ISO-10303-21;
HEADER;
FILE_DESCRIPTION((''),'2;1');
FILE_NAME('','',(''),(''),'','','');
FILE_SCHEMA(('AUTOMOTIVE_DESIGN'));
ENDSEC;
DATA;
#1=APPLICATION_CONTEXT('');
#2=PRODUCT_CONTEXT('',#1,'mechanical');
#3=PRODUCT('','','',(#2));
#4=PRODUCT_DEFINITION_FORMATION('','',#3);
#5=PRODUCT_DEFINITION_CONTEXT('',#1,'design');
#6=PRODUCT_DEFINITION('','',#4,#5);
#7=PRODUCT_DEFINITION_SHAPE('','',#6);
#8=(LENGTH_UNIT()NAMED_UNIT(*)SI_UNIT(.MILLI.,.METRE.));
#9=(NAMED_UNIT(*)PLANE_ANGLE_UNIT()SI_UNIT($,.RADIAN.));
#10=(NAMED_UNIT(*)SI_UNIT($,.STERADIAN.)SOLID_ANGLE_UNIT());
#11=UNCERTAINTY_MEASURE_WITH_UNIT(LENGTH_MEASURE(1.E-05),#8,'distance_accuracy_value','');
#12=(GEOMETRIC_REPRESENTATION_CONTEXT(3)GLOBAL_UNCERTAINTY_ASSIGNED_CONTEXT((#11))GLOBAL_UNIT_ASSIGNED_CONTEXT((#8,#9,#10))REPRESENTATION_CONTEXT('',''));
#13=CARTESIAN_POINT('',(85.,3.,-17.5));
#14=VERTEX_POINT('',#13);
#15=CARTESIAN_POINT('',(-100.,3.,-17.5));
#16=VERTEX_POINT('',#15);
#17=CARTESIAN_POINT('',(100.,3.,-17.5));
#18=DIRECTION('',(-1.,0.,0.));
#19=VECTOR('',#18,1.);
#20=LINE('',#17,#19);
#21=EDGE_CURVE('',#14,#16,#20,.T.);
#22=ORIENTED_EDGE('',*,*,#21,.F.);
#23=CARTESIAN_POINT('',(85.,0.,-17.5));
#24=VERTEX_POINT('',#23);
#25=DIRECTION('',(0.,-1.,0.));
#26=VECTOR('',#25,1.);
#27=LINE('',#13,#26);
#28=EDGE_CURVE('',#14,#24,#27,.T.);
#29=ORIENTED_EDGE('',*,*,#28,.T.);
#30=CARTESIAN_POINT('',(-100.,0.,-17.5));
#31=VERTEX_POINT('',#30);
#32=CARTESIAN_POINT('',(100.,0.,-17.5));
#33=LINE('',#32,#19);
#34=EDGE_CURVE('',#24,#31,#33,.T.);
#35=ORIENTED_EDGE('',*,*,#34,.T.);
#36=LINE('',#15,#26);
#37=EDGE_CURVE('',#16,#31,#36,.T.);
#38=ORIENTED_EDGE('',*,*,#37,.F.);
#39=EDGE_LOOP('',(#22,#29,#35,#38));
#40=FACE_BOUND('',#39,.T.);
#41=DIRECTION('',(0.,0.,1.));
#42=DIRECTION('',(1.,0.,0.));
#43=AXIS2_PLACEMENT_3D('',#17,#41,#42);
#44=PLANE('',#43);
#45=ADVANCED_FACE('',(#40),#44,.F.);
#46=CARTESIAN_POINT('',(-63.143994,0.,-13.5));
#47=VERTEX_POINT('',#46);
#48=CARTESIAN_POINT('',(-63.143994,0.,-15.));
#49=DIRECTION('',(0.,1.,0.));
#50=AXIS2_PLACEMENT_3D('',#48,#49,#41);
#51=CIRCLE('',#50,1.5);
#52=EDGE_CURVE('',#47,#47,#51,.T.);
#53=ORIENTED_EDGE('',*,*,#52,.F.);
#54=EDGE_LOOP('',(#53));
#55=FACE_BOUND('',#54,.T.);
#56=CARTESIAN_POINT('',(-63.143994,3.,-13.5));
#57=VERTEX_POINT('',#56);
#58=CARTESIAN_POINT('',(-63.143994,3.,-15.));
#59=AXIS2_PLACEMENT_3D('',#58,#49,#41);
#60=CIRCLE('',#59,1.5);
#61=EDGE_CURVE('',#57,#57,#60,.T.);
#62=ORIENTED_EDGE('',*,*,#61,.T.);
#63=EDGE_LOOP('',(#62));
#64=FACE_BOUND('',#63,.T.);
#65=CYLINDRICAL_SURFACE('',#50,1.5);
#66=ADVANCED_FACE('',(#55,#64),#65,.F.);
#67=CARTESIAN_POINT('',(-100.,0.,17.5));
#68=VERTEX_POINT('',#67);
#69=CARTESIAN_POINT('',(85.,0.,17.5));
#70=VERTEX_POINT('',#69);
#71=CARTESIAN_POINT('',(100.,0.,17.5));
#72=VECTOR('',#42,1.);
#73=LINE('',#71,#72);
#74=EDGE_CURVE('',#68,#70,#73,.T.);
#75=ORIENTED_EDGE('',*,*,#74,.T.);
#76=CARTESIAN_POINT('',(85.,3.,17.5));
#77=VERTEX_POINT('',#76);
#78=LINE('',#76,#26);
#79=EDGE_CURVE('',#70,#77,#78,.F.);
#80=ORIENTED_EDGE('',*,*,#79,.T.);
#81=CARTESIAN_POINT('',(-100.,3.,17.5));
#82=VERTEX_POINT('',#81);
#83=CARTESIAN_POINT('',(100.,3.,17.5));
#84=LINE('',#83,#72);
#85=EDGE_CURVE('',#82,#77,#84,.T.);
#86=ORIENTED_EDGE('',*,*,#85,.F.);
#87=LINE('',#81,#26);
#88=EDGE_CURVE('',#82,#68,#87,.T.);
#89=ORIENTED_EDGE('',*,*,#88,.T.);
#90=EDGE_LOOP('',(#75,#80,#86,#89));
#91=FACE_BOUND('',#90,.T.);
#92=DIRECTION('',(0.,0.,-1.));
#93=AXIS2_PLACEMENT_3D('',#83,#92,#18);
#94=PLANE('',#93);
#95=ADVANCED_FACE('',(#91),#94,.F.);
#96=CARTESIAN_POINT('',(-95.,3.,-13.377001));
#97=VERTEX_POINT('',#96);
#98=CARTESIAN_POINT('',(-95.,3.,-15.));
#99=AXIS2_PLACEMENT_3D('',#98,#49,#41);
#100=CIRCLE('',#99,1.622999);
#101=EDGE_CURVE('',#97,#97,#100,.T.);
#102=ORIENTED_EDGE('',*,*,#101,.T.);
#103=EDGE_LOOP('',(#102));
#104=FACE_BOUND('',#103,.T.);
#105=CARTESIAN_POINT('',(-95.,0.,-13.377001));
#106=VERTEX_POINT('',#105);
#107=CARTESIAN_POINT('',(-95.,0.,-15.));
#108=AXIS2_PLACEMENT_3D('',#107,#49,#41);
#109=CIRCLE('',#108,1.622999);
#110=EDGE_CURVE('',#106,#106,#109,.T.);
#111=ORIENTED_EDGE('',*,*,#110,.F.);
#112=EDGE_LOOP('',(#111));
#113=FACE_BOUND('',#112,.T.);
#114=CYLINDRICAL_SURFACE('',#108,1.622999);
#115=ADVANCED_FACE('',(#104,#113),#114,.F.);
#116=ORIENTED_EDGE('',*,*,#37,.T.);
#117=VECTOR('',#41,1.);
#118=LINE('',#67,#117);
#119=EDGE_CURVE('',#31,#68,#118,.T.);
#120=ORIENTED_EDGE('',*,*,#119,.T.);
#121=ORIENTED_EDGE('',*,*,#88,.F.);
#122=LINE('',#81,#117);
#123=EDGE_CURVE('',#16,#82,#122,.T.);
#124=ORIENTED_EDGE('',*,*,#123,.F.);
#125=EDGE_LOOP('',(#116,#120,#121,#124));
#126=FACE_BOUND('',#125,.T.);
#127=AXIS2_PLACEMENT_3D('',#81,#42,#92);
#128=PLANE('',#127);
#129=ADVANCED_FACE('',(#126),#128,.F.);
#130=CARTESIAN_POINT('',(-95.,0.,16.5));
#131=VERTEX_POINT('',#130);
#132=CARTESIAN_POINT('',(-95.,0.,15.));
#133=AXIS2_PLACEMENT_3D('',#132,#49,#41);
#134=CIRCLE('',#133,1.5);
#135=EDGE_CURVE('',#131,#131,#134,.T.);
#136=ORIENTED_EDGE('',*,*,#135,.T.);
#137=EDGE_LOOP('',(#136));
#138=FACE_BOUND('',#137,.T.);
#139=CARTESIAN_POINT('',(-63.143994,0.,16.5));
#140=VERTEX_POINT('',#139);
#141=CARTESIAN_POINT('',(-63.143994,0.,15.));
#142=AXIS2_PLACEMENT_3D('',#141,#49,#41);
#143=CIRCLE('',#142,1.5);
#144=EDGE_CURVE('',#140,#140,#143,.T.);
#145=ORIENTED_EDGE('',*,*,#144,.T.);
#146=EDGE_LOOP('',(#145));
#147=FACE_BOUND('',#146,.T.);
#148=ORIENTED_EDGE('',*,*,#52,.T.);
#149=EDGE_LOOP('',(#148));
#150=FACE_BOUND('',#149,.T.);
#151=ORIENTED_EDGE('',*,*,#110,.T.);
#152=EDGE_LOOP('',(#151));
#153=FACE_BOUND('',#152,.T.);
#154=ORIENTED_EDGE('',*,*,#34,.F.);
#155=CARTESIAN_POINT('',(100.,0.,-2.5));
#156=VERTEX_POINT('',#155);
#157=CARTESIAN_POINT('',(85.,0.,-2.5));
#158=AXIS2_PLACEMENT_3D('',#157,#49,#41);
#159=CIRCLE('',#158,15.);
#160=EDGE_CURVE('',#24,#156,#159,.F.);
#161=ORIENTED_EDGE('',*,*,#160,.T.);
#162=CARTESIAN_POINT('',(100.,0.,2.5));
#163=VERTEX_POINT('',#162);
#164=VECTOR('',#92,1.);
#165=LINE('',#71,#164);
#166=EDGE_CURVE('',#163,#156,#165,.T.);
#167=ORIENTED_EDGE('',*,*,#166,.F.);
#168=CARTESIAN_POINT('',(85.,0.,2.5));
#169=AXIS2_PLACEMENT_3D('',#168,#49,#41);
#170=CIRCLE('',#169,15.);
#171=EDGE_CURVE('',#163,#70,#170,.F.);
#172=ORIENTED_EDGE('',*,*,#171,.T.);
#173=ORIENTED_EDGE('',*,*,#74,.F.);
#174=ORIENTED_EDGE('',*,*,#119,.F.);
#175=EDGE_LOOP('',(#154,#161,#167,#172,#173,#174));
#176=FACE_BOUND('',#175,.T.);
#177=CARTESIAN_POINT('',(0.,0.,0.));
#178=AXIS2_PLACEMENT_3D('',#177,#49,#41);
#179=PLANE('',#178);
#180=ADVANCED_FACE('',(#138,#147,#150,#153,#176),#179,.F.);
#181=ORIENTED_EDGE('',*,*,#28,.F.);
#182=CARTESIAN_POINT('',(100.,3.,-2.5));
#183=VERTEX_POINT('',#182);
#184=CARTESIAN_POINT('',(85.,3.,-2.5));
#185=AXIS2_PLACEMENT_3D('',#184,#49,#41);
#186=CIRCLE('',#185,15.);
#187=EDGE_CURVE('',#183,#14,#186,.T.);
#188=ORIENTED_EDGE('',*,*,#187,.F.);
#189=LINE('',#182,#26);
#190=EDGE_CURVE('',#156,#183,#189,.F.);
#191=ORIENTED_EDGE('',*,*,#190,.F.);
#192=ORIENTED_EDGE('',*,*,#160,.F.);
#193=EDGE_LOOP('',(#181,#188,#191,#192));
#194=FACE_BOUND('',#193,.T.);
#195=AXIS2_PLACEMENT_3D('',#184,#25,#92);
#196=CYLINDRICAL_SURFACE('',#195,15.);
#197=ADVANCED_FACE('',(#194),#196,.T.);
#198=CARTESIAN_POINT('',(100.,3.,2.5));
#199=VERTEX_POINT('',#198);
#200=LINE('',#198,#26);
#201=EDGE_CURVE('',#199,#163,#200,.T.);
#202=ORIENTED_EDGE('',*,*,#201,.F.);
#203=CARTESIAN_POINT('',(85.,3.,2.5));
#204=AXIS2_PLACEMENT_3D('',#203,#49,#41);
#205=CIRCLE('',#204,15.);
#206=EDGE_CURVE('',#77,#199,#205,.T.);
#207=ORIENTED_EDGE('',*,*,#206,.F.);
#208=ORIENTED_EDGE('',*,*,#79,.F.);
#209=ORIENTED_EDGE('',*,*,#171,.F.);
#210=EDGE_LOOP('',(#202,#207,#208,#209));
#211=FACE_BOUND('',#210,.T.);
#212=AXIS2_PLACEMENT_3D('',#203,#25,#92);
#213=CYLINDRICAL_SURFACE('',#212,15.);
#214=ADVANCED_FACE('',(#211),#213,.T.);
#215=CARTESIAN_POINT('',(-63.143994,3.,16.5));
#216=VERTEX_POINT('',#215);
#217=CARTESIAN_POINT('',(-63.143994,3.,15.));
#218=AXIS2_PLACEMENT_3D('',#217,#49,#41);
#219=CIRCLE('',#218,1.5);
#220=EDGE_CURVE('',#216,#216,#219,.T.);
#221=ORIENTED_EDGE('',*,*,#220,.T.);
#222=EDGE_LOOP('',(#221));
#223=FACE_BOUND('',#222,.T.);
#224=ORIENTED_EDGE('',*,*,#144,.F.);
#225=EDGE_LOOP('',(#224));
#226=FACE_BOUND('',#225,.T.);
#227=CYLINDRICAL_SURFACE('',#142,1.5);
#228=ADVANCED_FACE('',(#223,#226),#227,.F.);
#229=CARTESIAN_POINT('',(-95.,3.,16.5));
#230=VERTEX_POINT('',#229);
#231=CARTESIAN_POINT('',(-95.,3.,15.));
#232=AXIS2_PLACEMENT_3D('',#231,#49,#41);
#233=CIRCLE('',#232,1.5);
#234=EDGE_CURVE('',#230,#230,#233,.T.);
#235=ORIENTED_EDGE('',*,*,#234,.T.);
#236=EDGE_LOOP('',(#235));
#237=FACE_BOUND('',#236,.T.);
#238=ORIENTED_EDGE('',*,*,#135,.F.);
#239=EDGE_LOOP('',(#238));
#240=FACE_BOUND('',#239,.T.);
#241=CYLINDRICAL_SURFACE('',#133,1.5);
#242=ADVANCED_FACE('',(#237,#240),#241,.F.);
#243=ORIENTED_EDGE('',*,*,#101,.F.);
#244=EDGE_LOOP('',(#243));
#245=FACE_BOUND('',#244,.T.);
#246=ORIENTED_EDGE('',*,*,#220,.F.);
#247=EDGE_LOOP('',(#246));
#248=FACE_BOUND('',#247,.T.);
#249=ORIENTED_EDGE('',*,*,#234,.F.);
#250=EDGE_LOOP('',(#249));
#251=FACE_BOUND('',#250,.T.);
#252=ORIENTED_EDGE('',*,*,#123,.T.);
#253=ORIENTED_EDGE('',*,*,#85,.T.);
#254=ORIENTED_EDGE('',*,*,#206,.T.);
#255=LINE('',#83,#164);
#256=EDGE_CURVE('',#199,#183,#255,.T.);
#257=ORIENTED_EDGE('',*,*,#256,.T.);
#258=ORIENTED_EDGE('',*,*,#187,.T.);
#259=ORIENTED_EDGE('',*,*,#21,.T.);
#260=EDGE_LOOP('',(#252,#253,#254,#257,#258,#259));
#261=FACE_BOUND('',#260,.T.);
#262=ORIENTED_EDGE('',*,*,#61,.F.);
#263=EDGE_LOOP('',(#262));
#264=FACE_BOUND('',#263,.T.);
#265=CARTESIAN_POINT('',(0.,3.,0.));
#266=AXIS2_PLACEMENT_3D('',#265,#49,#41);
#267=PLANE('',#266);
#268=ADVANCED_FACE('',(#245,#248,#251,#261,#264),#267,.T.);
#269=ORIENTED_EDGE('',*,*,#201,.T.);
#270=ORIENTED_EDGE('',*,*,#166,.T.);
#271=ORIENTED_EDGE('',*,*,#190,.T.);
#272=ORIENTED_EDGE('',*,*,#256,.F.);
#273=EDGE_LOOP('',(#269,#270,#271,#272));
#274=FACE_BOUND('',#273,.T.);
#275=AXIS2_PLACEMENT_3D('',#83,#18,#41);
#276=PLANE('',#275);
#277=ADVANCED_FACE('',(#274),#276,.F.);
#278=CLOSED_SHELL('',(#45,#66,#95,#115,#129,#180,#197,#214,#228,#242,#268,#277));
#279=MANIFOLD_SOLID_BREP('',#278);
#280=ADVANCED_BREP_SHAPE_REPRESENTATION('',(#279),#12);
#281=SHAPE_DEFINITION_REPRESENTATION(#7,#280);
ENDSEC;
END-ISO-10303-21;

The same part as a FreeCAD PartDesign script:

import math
import FreeCAD as App
import Part
import Sketcher

V = App.Vector
Q = App.Units.Quantity


def edges_at(feature, points):
    """Names of the edges that pass closest to the given points."""
    edges = feature.Shape.Edges
    near = lambda p: min(range(len(edges)), key=lambda i: edges[i].distToShape(Part.Vertex(*p))[0])
    return sorted({f"Edge{near(p) + 1}" for p in points})

doc = App.newDocument("Part")
body = doc.addObject("PartDesign::Body", "Body")

# Sketch on XZ plane
sketch1 = body.newObject("Sketcher::SketchObject", "Sketch")
sketch1.AttachmentSupport = (doc.getObject("XZ_Plane"), [""])
sketch1.MapMode = "FlatFace"
sketch1.addGeometry(Part.LineSegment(V(-100, -18, 0), V(-100, 18, 0)), False)
sketch1.addGeometry(Part.LineSegment(V(-100, 18, 0), V(100, 18, 0)), False)
sketch1.addGeometry(Part.LineSegment(V(100, 18, 0), V(100, -18, 0)), False)
sketch1.addGeometry(Part.LineSegment(V(100, -18, 0), V(-100, -18, 0)), False)
sketch1.addConstraint(Sketcher.Constraint("Coincident", 0, 2, 1, 1))
sketch1.addConstraint(Sketcher.Constraint("Coincident", 1, 2, 2, 1))
sketch1.addConstraint(Sketcher.Constraint("Coincident", 2, 2, 3, 1))
sketch1.addConstraint(Sketcher.Constraint("Coincident", 3, 2, 0, 1))
sketch1.addConstraint(Sketcher.Constraint("Vertical", 0))
sketch1.addConstraint(Sketcher.Constraint("Horizontal", 1))
sketch1.addConstraint(Sketcher.Constraint("Vertical", 2))
sketch1.addConstraint(Sketcher.Constraint("Horizontal", 3))
sketch1.addConstraint(Sketcher.Constraint("Symmetric", 0, 2, 2, 2, -1, 1))
sketch1.addConstraint(Sketcher.Constraint("DistanceX", 1, 1, 1, 2, Q("200 mm")))
sketch1.addConstraint(Sketcher.Constraint("DistanceY", 0, 1, 0, 2, Q("35 mm")))
pad1 = body.newObject("PartDesign::Pad", "Pad")
pad1.Profile = sketch1
pad1.Length = 3
pad1.Reversed = True
doc.recompute()

fillet = body.newObject("PartDesign::Fillet", "Fillet")
fillet.Base = (pad1, edges_at(pad1, [(100, 1.5, -17.5), (100, 1.5, 17.5)]))
fillet.Radius = 15

# Sketch on XZ plane
sketch2 = body.newObject("Sketcher::SketchObject", "Sketch001")
sketch2.AttachmentSupport = (doc.getObject("XZ_Plane"), [""])
sketch2.MapMode = "FlatFace"
sketch2.AttachmentOffset = App.Placement(V(0, 0, -3), App.Rotation())
sketch2.addGeometry(Part.ArcOfCircle(Part.Circle(V(-95, -15, 0), V(0, 0, 1), 1.6), math.radians(90), math.radians(360)), False)
sketch2.addGeometry(Part.ArcOfCircle(Part.Circle(V(-95, -15, 0), V(0, 0, 1), 1.6), math.radians(0), math.radians(90)), False)
sketch2.addGeometry(Part.ArcOfCircle(Part.Circle(V(-95, 15, 0), V(0, 0, 1), 1.5), math.radians(0), math.radians(270)), False)
sketch2.addGeometry(Part.ArcOfCircle(Part.Circle(V(-95, 15, 0), V(0, 0, 1), 1.5), math.radians(-90), math.radians(0)), False)
sketch2.addGeometry(Part.ArcOfCircle(Part.Circle(V(-63.1, 15, 0), V(0, 0, 1), 1.5), math.radians(180), math.radians(270)), False)
sketch2.addGeometry(Part.ArcOfCircle(Part.Circle(V(-63.1, 15, 0), V(0, 0, 1), 1.5), math.radians(0), math.radians(180)), False)
sketch2.addGeometry(Part.ArcOfCircle(Part.Circle(V(-63.1, 15, 0), V(0, 0, 1), 1.5), math.radians(-90), math.radians(0)), False)
sketch2.addGeometry(Part.ArcOfCircle(Part.Circle(V(-63.1, -15, 0), V(0, 0, 1), 1.5), math.radians(90), math.radians(180)), False)
sketch2.addGeometry(Part.ArcOfCircle(Part.Circle(V(-63.1, -15, 0), V(0, 0, 1), 1.5), math.radians(0), math.radians(90)), False)
sketch2.addGeometry(Part.ArcOfCircle(Part.Circle(V(-63.1, -15, 0), V(0, 0, 1), 1.5), math.radians(180), math.radians(360)), False)
sketch2.addConstraint(Sketcher.Constraint("Tangent", 0, 1, 1, 2))
sketch2.addConstraint(Sketcher.Constraint("Coincident", 1, 1, 0, 2))
sketch2.addConstraint(Sketcher.Constraint("Tangent", 2, 1, 3, 2))
sketch2.addConstraint(Sketcher.Constraint("Coincident", 3, 1, 2, 2))
sketch2.addConstraint(Sketcher.Constraint("Tangent", 4, 1, 5, 2))
sketch2.addConstraint(Sketcher.Constraint("Tangent", 5, 1, 6, 2))
sketch2.addConstraint(Sketcher.Constraint("Tangent", 6, 1, 4, 2))
sketch2.addConstraint(Sketcher.Constraint("Tangent", 7, 1, 8, 2))
sketch2.addConstraint(Sketcher.Constraint("Tangent", 8, 1, 9, 2))
sketch2.addConstraint(Sketcher.Constraint("Tangent", 9, 1, 7, 2))
sketch2.addConstraint(Sketcher.Constraint("Equal", 3, 4))
sketch2.addConstraint(Sketcher.Constraint("Equal", 6, 7))
sketch2.addConstraint(Sketcher.Constraint("Symmetric", 0, 3, 2, 3, -1))
sketch2.addConstraint(Sketcher.Constraint("Symmetric", 4, 3, 7, 3, -1))
sketch2.addConstraint(Sketcher.Constraint("Horizontal", 3, 3, 4, 3))
sketch2.addConstraint(Sketcher.Constraint("Horizontal", 9, 3, 1, 1))
sketch2.addConstraint(Sketcher.Constraint("Horizontal", 6, 3, 2, 1))
sketch2.addConstraint(Sketcher.Constraint("Horizontal", 2, 1, 4, 1))
sketch2.addConstraint(Sketcher.Constraint("Horizontal", 4, 1, 5, 1))
sketch2.addConstraint(Sketcher.Constraint("Horizontal", 1, 1, 8, 1))
sketch2.addConstraint(Sketcher.Constraint("Horizontal", 8, 1, 9, 1))
sketch2.addConstraint(Sketcher.Constraint("Vertical", 3, 3, 0, 1))
sketch2.addConstraint(Sketcher.Constraint("Vertical", 0, 1, 3, 1))
sketch2.addConstraint(Sketcher.Constraint("Vertical", 9, 3, 6, 1))
sketch2.addConstraint(Sketcher.Constraint("Vertical", 6, 1, 7, 1))
sketch2.addConstraint(Sketcher.Constraint("Radius", 2, Q("1.5 mm")))
sketch2.addConstraint(Sketcher.Constraint("DistanceX", 0, 3, -1, 1, Q("95 mm")))
sketch2.addConstraint(Sketcher.Constraint("DistanceY", 0, 3, -1, 1, Q("15 mm")))
sketch2.addConstraint(Sketcher.Constraint("Radius", 0, Q("1.622999 mm")))
sketch2.addConstraint(Sketcher.Constraint("DistanceX", 4, 3, -1, 1, Q("63.143994 mm")))
pocket1 = body.newObject("PartDesign::Pocket", "Pocket")
pocket1.Profile = sketch2
pocket1.Type = "ThroughAll"
pocket1.Reversed = True

doc.recompute()
